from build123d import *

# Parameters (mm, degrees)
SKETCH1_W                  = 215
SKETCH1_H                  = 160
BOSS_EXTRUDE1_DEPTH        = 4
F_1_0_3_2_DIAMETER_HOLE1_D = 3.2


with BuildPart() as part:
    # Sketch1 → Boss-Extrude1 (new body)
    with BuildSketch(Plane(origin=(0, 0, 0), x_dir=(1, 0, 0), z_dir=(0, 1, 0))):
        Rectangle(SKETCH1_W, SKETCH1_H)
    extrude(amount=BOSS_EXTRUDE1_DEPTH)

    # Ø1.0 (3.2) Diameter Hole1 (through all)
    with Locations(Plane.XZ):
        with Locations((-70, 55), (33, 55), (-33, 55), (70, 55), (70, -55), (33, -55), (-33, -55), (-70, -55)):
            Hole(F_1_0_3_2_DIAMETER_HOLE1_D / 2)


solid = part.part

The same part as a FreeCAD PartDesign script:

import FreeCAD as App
import Part
import Sketcher


def add_polygon(sketch, points):
    """Adds a closed chain of lines whose ends are joined by coincident constraints."""
    first, n = sketch.GeometryCount, len(points)
    for a, b in zip(points, points[1:] + points[:1]):
        sketch.addGeometry(Part.LineSegment(App.Vector(*a, 0), App.Vector(*b, 0)), False)
    for i in range(n):
        sketch.addConstraint(Sketcher.Constraint("Coincident", first + i, 2, first + (i + 1) % n, 1))

doc = App.newDocument("Part")
body = doc.addObject("PartDesign::Body", "Body")

sketch1 = body.newObject("Sketcher::SketchObject", "Sketch")
sketch1.AttachmentSupport = (doc.getObject("XZ_Plane"), [""])
sketch1.MapMode = "FlatFace"
add_polygon(sketch1, [(-107.5, -80), (-107.5, 80), (107.5, 80), (107.5, -80)])
sketch1.addConstraint([
    Sketcher.Constraint("Vertical", 0),
    Sketcher.Constraint("Horizontal", 1),
    Sketcher.Constraint("Vertical", 2),
    Sketcher.Constraint("Horizontal", 3),
    Sketcher.Constraint("Symmetric", 0, 2, 2, 2, -1, 1),
    Sketcher.Constraint("DistanceX", 1, 1, 1, 2, 215.0),
    Sketcher.Constraint("DistanceY", 0, 1, 0, 2, 160.0),
])
pad1 = body.newObject("PartDesign::Pad", "Pad")
pad1.Profile = sketch1
pad1.Length = 4
pad1.Reversed = True

sketch2 = body.newObject("Sketcher::SketchObject", "Sketch001")
sketch2.AttachmentSupport = (doc.getObject("XZ_Plane"), [""])
sketch2.MapMode = "FlatFace"
sketch2.addGeometry([
    Part.Circle(App.Vector(-70, 55, 0), App.Vector(0, 0, 1), 1.6),
    Part.Circle(App.Vector(33, 55, 0), App.Vector(0, 0, 1), 1.6),
    Part.Circle(App.Vector(-33, 55, 0), App.Vector(0, 0, 1), 1.6),
    Part.Circle(App.Vector(70, 55, 0), App.Vector(0, 0, 1), 1.6),
    Part.Circle(App.Vector(70, -55, 0), App.Vector(0, 0, 1), 1.6),
    Part.Circle(App.Vector(33, -55, 0), App.Vector(0, 0, 1), 1.6),
    Part.Circle(App.Vector(-33, -55, 0), App.Vector(0, 0, 1), 1.6),
    Part.Circle(App.Vector(-70, -55, 0), App.Vector(0, 0, 1), 1.6),
], False)
sketch2.addConstraint([
    Sketcher.Constraint("Equal", 0, 1),
    Sketcher.Constraint("Equal", 1, 2),
    Sketcher.Constraint("Equal", 2, 3),
    Sketcher.Constraint("Equal", 3, 4),
    Sketcher.Constraint("Equal", 4, 5),
    Sketcher.Constraint("Equal", 5, 6),
    Sketcher.Constraint("Equal", 6, 7),
    Sketcher.Constraint("Symmetric", 0, 3, 4, 3, -1, 1),
    Sketcher.Constraint("Symmetric", 2, 3, 5, 3, -1, 1),
    Sketcher.Constraint("Symmetric", 1, 3, 6, 3, -1, 1),
    Sketcher.Constraint("Symmetric", 3, 3, 7, 3, -1, 1),
    Sketcher.Constraint("Symmetric", 1, 3, 2, 3, -2),
    Sketcher.Constraint("Symmetric", 0, 3, 3, 3, -2),
    Sketcher.Constraint("Horizontal", 0, 3, 1, 3),
    Sketcher.Constraint("Diameter", 0, 3.2),
    Sketcher.Constraint("DistanceX", 0, 3, -1, 1, 70.0),
    Sketcher.Constraint("DistanceY", -1, 1, 0, 3, 55.0),
    Sketcher.Constraint("DistanceX", -1, 1, 1, 3, 33.0),
])
doc.recompute()
hole = body.newObject("PartDesign::Hole", "Hole")
hole.Profile = sketch2
hole.ThreadType = "None"
hole.Diameter = 3.2
hole.DepthType = "ThroughAll"

doc.recompute()
